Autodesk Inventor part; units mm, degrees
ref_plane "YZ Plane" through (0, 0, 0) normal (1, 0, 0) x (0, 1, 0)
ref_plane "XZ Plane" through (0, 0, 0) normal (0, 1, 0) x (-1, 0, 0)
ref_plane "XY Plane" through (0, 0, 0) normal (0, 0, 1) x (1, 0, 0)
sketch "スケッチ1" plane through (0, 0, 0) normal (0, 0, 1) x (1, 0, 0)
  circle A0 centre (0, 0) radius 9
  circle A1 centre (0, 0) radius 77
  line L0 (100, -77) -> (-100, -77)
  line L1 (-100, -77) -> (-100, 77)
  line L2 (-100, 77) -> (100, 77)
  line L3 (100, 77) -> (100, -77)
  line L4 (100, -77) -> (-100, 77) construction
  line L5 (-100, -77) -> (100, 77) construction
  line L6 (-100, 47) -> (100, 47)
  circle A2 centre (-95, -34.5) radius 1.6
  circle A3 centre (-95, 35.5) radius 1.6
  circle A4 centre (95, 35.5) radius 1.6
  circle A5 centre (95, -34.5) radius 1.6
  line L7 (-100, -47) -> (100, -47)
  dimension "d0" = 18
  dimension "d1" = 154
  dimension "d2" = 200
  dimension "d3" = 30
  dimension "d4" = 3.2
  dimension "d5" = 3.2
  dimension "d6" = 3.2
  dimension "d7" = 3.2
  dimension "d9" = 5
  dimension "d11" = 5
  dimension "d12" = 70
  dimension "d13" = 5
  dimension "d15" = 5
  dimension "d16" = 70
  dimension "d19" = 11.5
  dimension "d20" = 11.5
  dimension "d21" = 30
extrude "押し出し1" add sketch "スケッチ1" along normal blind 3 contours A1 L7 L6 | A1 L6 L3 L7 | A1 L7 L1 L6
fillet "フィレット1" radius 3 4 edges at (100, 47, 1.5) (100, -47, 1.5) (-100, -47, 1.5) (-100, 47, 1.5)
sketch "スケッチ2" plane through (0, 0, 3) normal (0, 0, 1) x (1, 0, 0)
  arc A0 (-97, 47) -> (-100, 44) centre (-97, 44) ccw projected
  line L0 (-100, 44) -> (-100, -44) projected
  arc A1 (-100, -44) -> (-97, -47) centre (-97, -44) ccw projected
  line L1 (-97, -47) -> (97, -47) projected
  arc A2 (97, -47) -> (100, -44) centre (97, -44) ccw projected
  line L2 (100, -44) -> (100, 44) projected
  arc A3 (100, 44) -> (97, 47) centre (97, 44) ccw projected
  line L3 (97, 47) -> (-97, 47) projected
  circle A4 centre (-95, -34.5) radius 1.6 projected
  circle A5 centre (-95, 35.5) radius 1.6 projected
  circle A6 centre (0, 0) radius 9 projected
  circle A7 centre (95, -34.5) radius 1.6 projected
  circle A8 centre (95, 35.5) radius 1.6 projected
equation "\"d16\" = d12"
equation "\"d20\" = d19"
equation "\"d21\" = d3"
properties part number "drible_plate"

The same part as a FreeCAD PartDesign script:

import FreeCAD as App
import Part
import Sketcher
from FreeCAD import Vector
Q = App.Units.Quantity


def edges_at(feature, points):
    """Names of the edges that pass closest to the given points."""
    edges = feature.Shape.Edges
    near = lambda p: min(range(len(edges)), key=lambda i: edges[i].distToShape(Part.Vertex(*p))[0])
    return sorted({f"Edge{near(p) + 1}" for p in points})


def add_polygon(sketch, points):
    """Adds a closed chain of lines whose ends are joined by coincident constraints."""
    first, n = sketch.GeometryCount, len(points)
    for a, b in zip(points, points[1:] + points[:1]):
        sketch.addGeometry(Part.LineSegment(App.Vector(*a, 0), App.Vector(*b, 0)), False)
    for i in range(n):
        sketch.addConstraint(Sketcher.Constraint("Coincident", first + i, 2, first + (i + 1) % n, 1))

doc = App.newDocument("Part")
body = doc.addObject("PartDesign::Body", "Body")

# Sketch on XY plane
sketch1 = body.newObject("Sketcher::SketchObject", "Sketch")
sketch1.AttachmentSupport = (doc.getObject("XY_Plane"), [""])
sketch1.MapMode = "FlatFace"
add_polygon(sketch1, [(100, -47), (100, 47), (-100, 47), (-100, -47)])  # lines 0-3
sketch1.addGeometry(Part.Circle(Vector(0, 0, 0), Vector(0, 0, 1), 9), False)  # 4
sketch1.addGeometry(Part.Circle(Vector(95, -34.5, 0), Vector(0, 0, 1), 1.6), False)  # 5
sketch1.addGeometry(Part.Circle(Vector(95, 35.5, 0), Vector(0, 0, 1), 1.6), False)  # 6
sketch1.addGeometry(Part.Circle(Vector(-95, 35.5, 0), Vector(0, 0, 1), 1.6), False)  # 7
sketch1.addGeometry(Part.Circle(Vector(-95, -34.5, 0), Vector(0, 0, 1), 1.6), False)  # 8
sketch1.addConstraint(Sketcher.Constraint("Vertical", 0))
sketch1.addConstraint(Sketcher.Constraint("Horizontal", 1))
sketch1.addConstraint(Sketcher.Constraint("Vertical", 2))
sketch1.addConstraint(Sketcher.Constraint("Horizontal", 3))
sketch1.addConstraint(Sketcher.Constraint("Coincident", 4, 3, -1, 1))
sketch1.addConstraint(Sketcher.Constraint("Equal", 5, 6))
sketch1.addConstraint(Sketcher.Constraint("Equal", 6, 7))
sketch1.addConstraint(Sketcher.Constraint("Equal", 7, 8))
sketch1.addConstraint(Sketcher.Constraint("Symmetric", 0, 2, 2, 2, -1, 1))
sketch1.addConstraint(Sketcher.Constraint("Symmetric", 6, 3, 7, 3, -2))
sketch1.addConstraint(Sketcher.Constraint("Symmetric", 5, 3, 8, 3, -2))
sketch1.addConstraint(Sketcher.Constraint("Vertical", 5, 3, 6, 3))
sketch1.addConstraint(Sketcher.Constraint("Diameter", 4, Q("18 mm")))
sketch1.addConstraint(Sketcher.Constraint("Diameter", 5, Q("3.2 mm")))
sketch1.addConstraint(Sketcher.Constraint("DistanceX", 1, 2, 1, 1, Q("200 mm")))
sketch1.addConstraint(Sketcher.Constraint("DistanceY", 5, 3, 6, 3, Q("70 mm")))
sketch1.addConstraint(Sketcher.Constraint("DistanceX", 6, 3, 0, 2, Q("5 mm")))
sketch1.addConstraint(Sketcher.Constraint("DistanceY", 6, 3, 0, 2, Q("11.5 mm")))
sketch1.addConstraint(Sketcher.Constraint("DistanceY", 0, 1, 0, 2, Q("94 mm")))
pad1 = body.newObject("PartDesign::Pad", "Pad")
pad1.Profile = sketch1
pad1.Length = 3
doc.recompute()

fillet = body.newObject("PartDesign::Fillet", "Fillet")
fillet.Base = (pad1, edges_at(pad1, [
    (100, 47, 1.5),
    (100, -47, 1.5),
    (-100, -47, 1.5),
    (-100, 47, 1.5),
]))
fillet.Radius = 3

doc.recompute()
